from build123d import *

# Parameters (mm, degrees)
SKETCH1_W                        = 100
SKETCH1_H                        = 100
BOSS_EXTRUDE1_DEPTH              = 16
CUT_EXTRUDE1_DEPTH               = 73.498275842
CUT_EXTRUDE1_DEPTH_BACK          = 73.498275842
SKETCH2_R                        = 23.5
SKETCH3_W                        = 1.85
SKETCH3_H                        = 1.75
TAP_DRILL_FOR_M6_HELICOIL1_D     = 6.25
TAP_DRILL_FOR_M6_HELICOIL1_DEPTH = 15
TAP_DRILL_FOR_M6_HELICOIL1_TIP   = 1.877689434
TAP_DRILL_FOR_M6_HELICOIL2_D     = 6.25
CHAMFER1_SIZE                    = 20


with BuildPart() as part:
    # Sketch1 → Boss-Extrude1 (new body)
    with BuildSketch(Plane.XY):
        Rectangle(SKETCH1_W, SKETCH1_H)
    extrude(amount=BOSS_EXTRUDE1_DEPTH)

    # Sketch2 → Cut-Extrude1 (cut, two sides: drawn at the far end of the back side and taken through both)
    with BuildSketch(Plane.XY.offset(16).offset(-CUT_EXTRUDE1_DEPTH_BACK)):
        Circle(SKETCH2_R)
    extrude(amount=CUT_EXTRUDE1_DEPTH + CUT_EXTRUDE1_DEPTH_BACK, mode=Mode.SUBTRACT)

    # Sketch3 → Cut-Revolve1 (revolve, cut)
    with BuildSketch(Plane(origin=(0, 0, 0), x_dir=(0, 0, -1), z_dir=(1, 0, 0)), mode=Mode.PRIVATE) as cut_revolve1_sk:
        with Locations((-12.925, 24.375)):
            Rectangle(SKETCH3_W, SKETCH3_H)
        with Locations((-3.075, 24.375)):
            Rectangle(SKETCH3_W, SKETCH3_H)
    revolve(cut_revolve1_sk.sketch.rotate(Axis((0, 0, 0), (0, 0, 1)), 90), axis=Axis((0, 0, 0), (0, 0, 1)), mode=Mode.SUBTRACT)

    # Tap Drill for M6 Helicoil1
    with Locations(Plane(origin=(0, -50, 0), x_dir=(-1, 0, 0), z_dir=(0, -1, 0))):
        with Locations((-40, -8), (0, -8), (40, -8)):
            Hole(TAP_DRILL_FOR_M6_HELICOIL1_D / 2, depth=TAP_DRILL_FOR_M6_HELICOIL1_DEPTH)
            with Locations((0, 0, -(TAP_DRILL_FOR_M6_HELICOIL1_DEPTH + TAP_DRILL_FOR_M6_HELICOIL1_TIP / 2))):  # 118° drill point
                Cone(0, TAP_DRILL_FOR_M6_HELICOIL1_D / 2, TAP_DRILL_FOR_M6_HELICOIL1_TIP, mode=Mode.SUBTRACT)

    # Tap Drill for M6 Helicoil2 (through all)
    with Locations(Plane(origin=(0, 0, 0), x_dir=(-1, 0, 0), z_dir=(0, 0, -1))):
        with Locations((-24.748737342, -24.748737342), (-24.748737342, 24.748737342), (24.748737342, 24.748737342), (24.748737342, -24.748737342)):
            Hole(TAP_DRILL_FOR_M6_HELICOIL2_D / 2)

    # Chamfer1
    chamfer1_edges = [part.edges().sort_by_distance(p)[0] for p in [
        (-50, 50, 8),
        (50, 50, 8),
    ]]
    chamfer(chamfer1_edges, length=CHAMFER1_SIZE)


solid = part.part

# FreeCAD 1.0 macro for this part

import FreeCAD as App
import Part
import Sketcher
Q = App.Units.Quantity


def edges_at(feature, points):
    """Names of the edges that pass closest to the given points."""
    edges = feature.Shape.Edges
    near = lambda p: min(range(len(edges)), key=lambda i: edges[i].distToShape(Part.Vertex(*p))[0])
    return sorted({f"Edge{near(p) + 1}" for p in points})

doc = App.newDocument("Part")
body = doc.addObject("PartDesign::Body", "Body")

sketch1 = body.newObject("Sketcher::SketchObject", "Sketch")
sketch1.AttachmentSupport = (doc.getObject("XY_Plane"), [""])
sketch1.MapMode = "FlatFace"
sketch1.addGeometry(Part.LineSegment(App.Vector(-50, 50, 0), App.Vector(-50, -50, 0)), False)
sketch1.addGeometry(Part.LineSegment(App.Vector(-50, -50, 0), App.Vector(50, -50, 0)), False)
sketch1.addGeometry(Part.LineSegment(App.Vector(50, -50, 0), App.Vector(50, 50, 0)), False)
sketch1.addGeometry(Part.LineSegment(App.Vector(50, 50, 0), App.Vector(-50, 50, 0)), False)
sketch1.addConstraint(Sketcher.Constraint("Coincident", 0, 2, 1, 1))
sketch1.addConstraint(Sketcher.Constraint("Coincident", 1, 2, 2, 1))
sketch1.addConstraint(Sketcher.Constraint("Coincident", 2, 2, 3, 1))
sketch1.addConstraint(Sketcher.Constraint("Coincident", 3, 2, 0, 1))
sketch1.addConstraint(Sketcher.Constraint("Vertical", 0))
sketch1.addConstraint(Sketcher.Constraint("Horizontal", 1))
sketch1.addConstraint(Sketcher.Constraint("Vertical", 2))
sketch1.addConstraint(Sketcher.Constraint("Horizontal", 3))
sketch1.addConstraint(Sketcher.Constraint("Symmetric", 0, 2, 2, 2, -1, 1))
sketch1.addConstraint(Sketcher.Constraint("Equal", 3, 0))
sketch1.addConstraint(Sketcher.Constraint("DistanceX", 1, 1, 1, 2, Q("100 mm")))
pad1 = body.newObject("PartDesign::Pad", "Pad")
pad1.Profile = sketch1
pad1.Length = 16

sketch2 = body.newObject("Sketcher::SketchObject", "Sketch001")
sketch2.AttachmentSupport = (doc.getObject("XY_Plane"), [""])
sketch2.MapMode = "FlatFace"
sketch2.AttachmentOffset = App.Placement(App.Vector(0, 0, 16), App.Rotation())
sketch2.addGeometry(Part.Circle(App.Vector(0, 0, 0), App.Vector(0, 0, 1), 24), False)
sketch2.addConstraint(Sketcher.Constraint("Coincident", 0, 3, -1, 1))
sketch2.addConstraint(Sketcher.Constraint("Diameter", 0, Q("47 mm")))
pocket1 = body.newObject("PartDesign::Pocket", "Pocket")
pocket1.Profile = sketch2
pocket1.Type = "ThroughAll"
pocket1.Midplane = True

sketch3 = body.newObject("Sketcher::SketchObject", "Sketch002")
sketch3.AttachmentSupport = (doc.getObject("YZ_Plane"), [""])
sketch3.MapMode = "FlatFace"
sketch3.addGeometry(Part.LineSegment(App.Vector(25.2, 13.8, 0), App.Vector(23.5, 13.8, 0)), False)
sketch3.addGeometry(Part.LineSegment(App.Vector(23.5, 13.8, 0), App.Vector(23.5, 12, 0)), False)
sketch3.addGeometry(Part.LineSegment(App.Vector(23.5, 12, 0), App.Vector(25.2, 12, 0)), False)
sketch3.addGeometry(Part.LineSegment(App.Vector(25.2, 12, 0), App.Vector(25.2, 13.8, 0)), False)
sketch3.addGeometry(Part.LineSegment(App.Vector(25.2, 4, 0), App.Vector(23.5, 4, 0)), False)
sketch3.addGeometry(Part.LineSegment(App.Vector(23.5, 4, 0), App.Vector(23.5, 2.1, 0)), False)
sketch3.addGeometry(Part.LineSegment(App.Vector(23.5, 2.1, 0), App.Vector(25.2, 2.1, 0)), False)
sketch3.addGeometry(Part.LineSegment(App.Vector(25.2, 2.1, 0), App.Vector(25.2, 4, 0)), False)
sketch3.addConstraint(Sketcher.Constraint("Coincident", 0, 2, 1, 1))
sketch3.addConstraint(Sketcher.Constraint("Coincident", 1, 2, 2, 1))
sketch3.addConstraint(Sketcher.Constraint("Coincident", 2, 2, 3, 1))
sketch3.addConstraint(Sketcher.Constraint("Coincident", 3, 2, 0, 1))
sketch3.addConstraint(Sketcher.Constraint("Coincident", 4, 2, 5, 1))
sketch3.addConstraint(Sketcher.Constraint("Coincident", 5, 2, 6, 1))
sketch3.addConstraint(Sketcher.Constraint("Coincident", 6, 2, 7, 1))
sketch3.addConstraint(Sketcher.Constraint("Coincident", 7, 2, 4, 1))
sketch3.addConstraint(Sketcher.Constraint("Horizontal", 0))
sketch3.addConstraint(Sketcher.Constraint("Vertical", 1))
sketch3.addConstraint(Sketcher.Constraint("Horizontal", 2))
sketch3.addConstraint(Sketcher.Constraint("Vertical", 3))
sketch3.addConstraint(Sketcher.Constraint("Horizontal", 4))
sketch3.addConstraint(Sketcher.Constraint("Vertical", 5))
sketch3.addConstraint(Sketcher.Constraint("Horizontal", 6))
sketch3.addConstraint(Sketcher.Constraint("Vertical", 7))
sketch3.addConstraint(Sketcher.Constraint("Vertical", 1, 2, 4, 2))
sketch3.addConstraint(Sketcher.Constraint("Vertical", 3, 2, 6, 2))
sketch3.addConstraint(Sketcher.Constraint("Equal", 3, 5))
sketch3.addConstraint(Sketcher.Constraint("DistanceY", -1, 1, 1, 2, Q("12 mm")))
sketch3.addConstraint(Sketcher.Constraint("DistanceY", -1, 1, 4, 2, Q("4 mm")))
sketch3.addConstraint(Sketcher.Constraint("DistanceX", 0, 2, 0, 1, Q("1.75 mm")))
sketch3.addConstraint(Sketcher.Constraint("DistanceY", 1, 2, 1, 1, Q("1.85 mm")))
sketch3.addConstraint(Sketcher.Constraint("DistanceX", -1, 1, 0, 2, Q("23.5 mm")))
groove = body.newObject("PartDesign::Groove", "Groove")
groove.Profile = sketch3
groove.ReferenceAxis = (sketch3, ["V_Axis"])
groove.Angle = 360

sketch4 = body.newObject("Sketcher::SketchObject", "Sketch003")
sketch4.AttachmentSupport = (doc.getObject("XZ_Plane"), [""])
sketch4.MapMode = "FlatFace"
sketch4.AttachmentOffset = App.Placement(App.Vector(0, 0, 50), App.Rotation())
sketch4.addGeometry(Part.Circle(App.Vector(40, 8, 0), App.Vector(0, 0, 1), 3.1), False)
sketch4.addGeometry(Part.Circle(App.Vector(0, 8, 0), App.Vector(0, 0, 1), 3.1), False)
sketch4.addGeometry(Part.Circle(App.Vector(-40, 8, 0), App.Vector(0, 0, 1), 3.1), False)
sketch4.addConstraint(Sketcher.Constraint("Equal", 0, 1))
sketch4.addConstraint(Sketcher.Constraint("Equal", 1, 2))
sketch4.addConstraint(Sketcher.Constraint("Symmetric", 0, 3, 2, 3, -2))
sketch4.addConstraint(Sketcher.Constraint("PointOnObject", 1, 3, -2))
sketch4.addConstraint(Sketcher.Constraint("Horizontal", 0, 3, 1, 3))
sketch4.addConstraint(Sketcher.Constraint("Diameter", 0, Q("6.25 mm")))
sketch4.addConstraint(Sketcher.Constraint("DistanceX", -1, 1, 0, 3, Q("40 mm")))
sketch4.addConstraint(Sketcher.Constraint("DistanceY", -1, 1, 0, 3, Q("8 mm")))
doc.recompute()
hole = body.newObject("PartDesign::Hole", "Hole")
hole.Profile = sketch4
hole.ThreadType = "None"
hole.Diameter = 6.25
hole.DepthType = "Dimension"
hole.Depth = 15
hole.DrillPoint = "Angled"
hole.DrillPointAngle = 118

sketch5 = body.newObject("Sketcher::SketchObject", "Sketch004")
sketch5.AttachmentSupport = (doc.getObject("XY_Plane"), [""])
sketch5.MapMode = "FlatFace"
sketch5.addGeometry(Part.Circle(App.Vector(24.7, -24.7, 0), App.Vector(0, 0, 1), 3.1), False)
sketch5.addGeometry(Part.Circle(App.Vector(24.7, 24.7, 0), App.Vector(0, 0, 1), 3.1), False)
sketch5.addGeometry(Part.Circle(App.Vector(-24.7, 24.7, 0), App.Vector(0, 0, 1), 3.1), False)
sketch5.addGeometry(Part.Circle(App.Vector(-24.7, -24.7, 0), App.Vector(0, 0, 1), 3.1), False)
sketch5.addConstraint(Sketcher.Constraint("Equal", 0, 1))
sketch5.addConstraint(Sketcher.Constraint("Equal", 1, 2))
sketch5.addConstraint(Sketcher.Constraint("Equal", 2, 3))
sketch5.addConstraint(Sketcher.Constraint("Symmetric", 0, 3, 2, 3, -1, 1))
sketch5.addConstraint(Sketcher.Constraint("Symmetric", 1, 3, 3, 3, -1, 1))
sketch5.addConstraint(Sketcher.Constraint("Symmetric", 1, 3, 2, 3, -2))
sketch5.addConstraint(Sketcher.Constraint("Diameter", 0, Q("6.25 mm")))
sketch5.addConstraint(Sketcher.Constraint("DistanceX", -1, 1, 0, 3, Q("24.748737 mm")))
sketch5.addConstraint(Sketcher.Constraint("DistanceY", 0, 3, -1, 1, Q("24.748737 mm")))
doc.recompute()
hole2 = body.newObject("PartDesign::Hole", "Hole001")
hole2.Profile = sketch5
hole2.ThreadType = "None"
hole2.Diameter = 6.25
hole2.DepthType = "ThroughAll"
hole2.Reversed = True
doc.recompute()

chamfer = body.newObject("PartDesign::Chamfer", "Chamfer")
chamfer.Base = (hole2, edges_at(hole2, [(-50, 50, 8), (50, 50, 8)]))
chamfer.Size = 20

doc.recompute()
